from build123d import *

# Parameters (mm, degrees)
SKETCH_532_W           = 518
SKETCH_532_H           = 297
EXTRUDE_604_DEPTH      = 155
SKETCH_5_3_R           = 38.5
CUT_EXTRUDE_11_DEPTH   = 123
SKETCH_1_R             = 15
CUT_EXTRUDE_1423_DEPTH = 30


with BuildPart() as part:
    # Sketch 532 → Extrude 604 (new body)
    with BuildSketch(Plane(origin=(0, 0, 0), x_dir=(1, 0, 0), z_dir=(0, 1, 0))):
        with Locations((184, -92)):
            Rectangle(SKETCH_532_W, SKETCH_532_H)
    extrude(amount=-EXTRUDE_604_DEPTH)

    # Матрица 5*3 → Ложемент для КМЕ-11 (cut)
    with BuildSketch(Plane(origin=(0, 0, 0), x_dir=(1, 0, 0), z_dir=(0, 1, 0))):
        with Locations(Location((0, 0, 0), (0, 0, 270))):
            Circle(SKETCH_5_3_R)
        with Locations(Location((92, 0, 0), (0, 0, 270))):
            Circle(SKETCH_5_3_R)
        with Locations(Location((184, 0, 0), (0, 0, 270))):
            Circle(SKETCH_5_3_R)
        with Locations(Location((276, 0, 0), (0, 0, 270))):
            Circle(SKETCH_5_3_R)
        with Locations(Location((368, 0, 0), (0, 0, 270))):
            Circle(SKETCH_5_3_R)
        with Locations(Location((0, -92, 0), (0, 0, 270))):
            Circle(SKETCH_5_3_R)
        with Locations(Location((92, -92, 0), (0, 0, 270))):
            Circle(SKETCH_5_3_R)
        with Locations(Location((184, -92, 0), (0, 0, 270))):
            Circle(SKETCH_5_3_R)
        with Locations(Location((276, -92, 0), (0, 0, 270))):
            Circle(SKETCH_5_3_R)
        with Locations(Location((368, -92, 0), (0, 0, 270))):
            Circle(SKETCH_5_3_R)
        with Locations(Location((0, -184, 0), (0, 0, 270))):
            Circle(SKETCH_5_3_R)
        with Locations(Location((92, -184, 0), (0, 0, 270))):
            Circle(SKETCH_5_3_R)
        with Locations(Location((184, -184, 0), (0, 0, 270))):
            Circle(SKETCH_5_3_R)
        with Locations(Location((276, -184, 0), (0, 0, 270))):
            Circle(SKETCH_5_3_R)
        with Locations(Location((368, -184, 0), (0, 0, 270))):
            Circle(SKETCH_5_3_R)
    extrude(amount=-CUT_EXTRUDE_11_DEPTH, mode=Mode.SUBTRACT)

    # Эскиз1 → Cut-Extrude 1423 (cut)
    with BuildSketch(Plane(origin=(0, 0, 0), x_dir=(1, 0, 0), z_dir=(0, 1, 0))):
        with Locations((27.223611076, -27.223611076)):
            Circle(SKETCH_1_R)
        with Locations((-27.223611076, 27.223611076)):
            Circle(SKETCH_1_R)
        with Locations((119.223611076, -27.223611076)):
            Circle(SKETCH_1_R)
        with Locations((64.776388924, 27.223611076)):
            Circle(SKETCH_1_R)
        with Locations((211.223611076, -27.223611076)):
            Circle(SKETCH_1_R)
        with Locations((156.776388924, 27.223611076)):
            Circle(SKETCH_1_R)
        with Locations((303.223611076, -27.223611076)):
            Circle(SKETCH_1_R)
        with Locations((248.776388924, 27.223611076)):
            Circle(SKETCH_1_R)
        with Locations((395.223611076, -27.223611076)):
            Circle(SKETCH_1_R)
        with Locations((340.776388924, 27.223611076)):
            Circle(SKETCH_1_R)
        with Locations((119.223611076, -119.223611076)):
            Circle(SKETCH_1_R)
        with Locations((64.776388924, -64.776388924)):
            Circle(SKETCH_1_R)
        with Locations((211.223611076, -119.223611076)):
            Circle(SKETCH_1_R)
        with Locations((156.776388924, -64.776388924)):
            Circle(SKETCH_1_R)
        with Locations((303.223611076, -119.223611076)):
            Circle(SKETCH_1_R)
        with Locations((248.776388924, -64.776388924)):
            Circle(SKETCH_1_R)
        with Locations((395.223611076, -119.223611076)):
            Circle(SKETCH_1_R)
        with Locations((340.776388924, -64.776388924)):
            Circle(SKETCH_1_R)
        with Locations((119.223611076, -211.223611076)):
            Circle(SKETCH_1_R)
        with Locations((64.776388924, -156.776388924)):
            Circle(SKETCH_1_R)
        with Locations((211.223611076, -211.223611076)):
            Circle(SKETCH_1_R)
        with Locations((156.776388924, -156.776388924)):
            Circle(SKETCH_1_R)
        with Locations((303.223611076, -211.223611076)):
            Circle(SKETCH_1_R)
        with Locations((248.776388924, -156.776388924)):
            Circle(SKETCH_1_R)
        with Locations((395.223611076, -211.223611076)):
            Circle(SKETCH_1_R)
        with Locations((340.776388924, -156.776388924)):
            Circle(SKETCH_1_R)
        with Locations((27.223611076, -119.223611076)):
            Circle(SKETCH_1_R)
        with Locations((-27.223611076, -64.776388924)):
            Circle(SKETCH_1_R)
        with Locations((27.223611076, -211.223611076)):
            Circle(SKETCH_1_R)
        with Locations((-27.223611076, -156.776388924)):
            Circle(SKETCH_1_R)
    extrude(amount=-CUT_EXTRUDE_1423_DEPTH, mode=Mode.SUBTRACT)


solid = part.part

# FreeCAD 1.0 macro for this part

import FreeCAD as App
import Part
import Sketcher
from FreeCAD import Vector
Q = App.Units.Quantity


def add_polygon(sketch, points):
    """Adds a closed chain of lines whose ends are joined by coincident constraints."""
    first, n = sketch.GeometryCount, len(points)
    for a, b in zip(points, points[1:] + points[:1]):
        sketch.addGeometry(Part.LineSegment(App.Vector(*a, 0), App.Vector(*b, 0)), False)
    for i in range(n):
        sketch.addConstraint(Sketcher.Constraint("Coincident", first + i, 2, first + (i + 1) % n, 1))

doc = App.newDocument("Part")
body = doc.addObject("PartDesign::Body", "Body")

# Sketch on XZ plane
sketch1 = body.newObject("Sketcher::SketchObject", "Sketch")
sketch1.AttachmentSupport = (doc.getObject("XZ_Plane"), [""])
sketch1.MapMode = "FlatFace"
add_polygon(sketch1, [(-75, -56), (-75, 240), (443, 240), (443, -56)])  # lines 0-3
sketch1.addConstraint(Sketcher.Constraint("Vertical", 0))
sketch1.addConstraint(Sketcher.Constraint("Horizontal", 1))
sketch1.addConstraint(Sketcher.Constraint("Vertical", 2))
sketch1.addConstraint(Sketcher.Constraint("Horizontal", 3))
sketch1.addConstraint(Sketcher.Constraint("DistanceX", 1, 1, 1, 2, Q("518 mm")))
sketch1.addConstraint(Sketcher.Constraint("DistanceY", 0, 1, 0, 2, Q("297 mm")))
sketch1.addConstraint(Sketcher.Constraint("DistanceX", 0, 2, -1, 1, Q("75 mm")))
sketch1.addConstraint(Sketcher.Constraint("DistanceY", -1, 1, 0, 2, Q("240.5 mm")))
pad1 = body.newObject("PartDesign::Pad", "Pad")
pad1.Profile = sketch1
pad1.Length = 155

# Sketch on XZ plane
sketch2 = body.newObject("Sketcher::SketchObject", "Sketch001")
sketch2.AttachmentSupport = (doc.getObject("XZ_Plane"), [""])
sketch2.MapMode = "FlatFace"
sketch2.addGeometry(Part.Circle(Vector(0, 0, 0), Vector(0, 0, 1), 38), False)
sketch2.addGeometry(Part.Circle(Vector(92, 0, 0), Vector(0, 0, 1), 38), False)
sketch2.addGeometry(Part.Circle(Vector(184, 0, 0), Vector(0, 0, 1), 38), False)
sketch2.addGeometry(Part.Circle(Vector(276, 0, 0), Vector(0, 0, 1), 38), False)
sketch2.addGeometry(Part.Circle(Vector(368, 0, 0), Vector(0, 0, 1), 38), False)
sketch2.addGeometry(Part.Circle(Vector(0, 92, 0), Vector(0, 0, 1), 38), False)
sketch2.addGeometry(Part.Circle(Vector(92, 92, 0), Vector(0, 0, 1), 38), False)
sketch2.addGeometry(Part.Circle(Vector(184, 92, 0), Vector(0, 0, 1), 38), False)
sketch2.addGeometry(Part.Circle(Vector(276, 92, 0), Vector(0, 0, 1), 38), False)
sketch2.addGeometry(Part.Circle(Vector(368, 92, 0), Vector(0, 0, 1), 38), False)
sketch2.addGeometry(Part.Circle(Vector(0, 184, 0), Vector(0, 0, 1), 38), False)
sketch2.addGeometry(Part.Circle(Vector(92, 184, 0), Vector(0, 0, 1), 38), False)
sketch2.addGeometry(Part.Circle(Vector(184, 184, 0), Vector(0, 0, 1), 38), False)
sketch2.addGeometry(Part.Circle(Vector(276, 184, 0), Vector(0, 0, 1), 38), False)
sketch2.addGeometry(Part.Circle(Vector(368, 184, 0), Vector(0, 0, 1), 38), False)
sketch2.addConstraint(Sketcher.Constraint("Coincident", 0, 3, -1, 1))
sketch2.addConstraint(Sketcher.Constraint("Equal", 0, 1))
sketch2.addConstraint(Sketcher.Constraint("Equal", 1, 2))
sketch2.addConstraint(Sketcher.Constraint("Equal", 2, 3))
sketch2.addConstraint(Sketcher.Constraint("Equal", 3, 4))
sketch2.addConstraint(Sketcher.Constraint("Equal", 4, 5))
sketch2.addConstraint(Sketcher.Constraint("Equal", 5, 6))
sketch2.addConstraint(Sketcher.Constraint("Equal", 6, 7))
sketch2.addConstraint(Sketcher.Constraint("Equal", 7, 8))
sketch2.addConstraint(Sketcher.Constraint("Equal", 8, 9))
sketch2.addConstraint(Sketcher.Constraint("Equal", 9, 10))
sketch2.addConstraint(Sketcher.Constraint("Equal", 10, 11))
sketch2.addConstraint(Sketcher.Constraint("Equal", 11, 12))
sketch2.addConstraint(Sketcher.Constraint("Equal", 12, 13))
sketch2.addConstraint(Sketcher.Constraint("Equal", 13, 14))
sketch2.addConstraint(Sketcher.Constraint("PointOnObject", 1, 3, -1))
sketch2.addConstraint(Sketcher.Constraint("PointOnObject", 2, 3, -1))
sketch2.addConstraint(Sketcher.Constraint("PointOnObject", 3, 3, -1))
sketch2.addConstraint(Sketcher.Constraint("PointOnObject", 4, 3, -1))
sketch2.addConstraint(Sketcher.Constraint("PointOnObject", 5, 3, -2))
sketch2.addConstraint(Sketcher.Constraint("PointOnObject", 10, 3, -2))
sketch2.addConstraint(Sketcher.Constraint("Horizontal", 5, 3, 6, 3))
sketch2.addConstraint(Sketcher.Constraint("Horizontal", 6, 3, 7, 3))
sketch2.addConstraint(Sketcher.Constraint("Horizontal", 7, 3, 8, 3))
sketch2.addConstraint(Sketcher.Constraint("Horizontal", 8, 3, 9, 3))
sketch2.addConstraint(Sketcher.Constraint("Horizontal", 10, 3, 11, 3))
sketch2.addConstraint(Sketcher.Constraint("Horizontal", 11, 3, 12, 3))
sketch2.addConstraint(Sketcher.Constraint("Horizontal", 12, 3, 13, 3))
sketch2.addConstraint(Sketcher.Constraint("Horizontal", 13, 3, 14, 3))
sketch2.addConstraint(Sketcher.Constraint("Vertical", 1, 3, 6, 3))
sketch2.addConstraint(Sketcher.Constraint("Vertical", 2, 3, 7, 3))
sketch2.addConstraint(Sketcher.Constraint("Vertical", 3, 3, 8, 3))
sketch2.addConstraint(Sketcher.Constraint("Vertical", 4, 3, 9, 3))
sketch2.addConstraint(Sketcher.Constraint("Vertical", 6, 3, 11, 3))
sketch2.addConstraint(Sketcher.Constraint("Vertical", 7, 3, 12, 3))
sketch2.addConstraint(Sketcher.Constraint("Vertical", 8, 3, 13, 3))
sketch2.addConstraint(Sketcher.Constraint("Vertical", 9, 3, 14, 3))
sketch2.addConstraint(Sketcher.Constraint("Diameter", 0, Q("77 mm")))
sketch2.addConstraint(Sketcher.Constraint("DistanceX", -1, 1, 1, 3, Q("92 mm")))
sketch2.addConstraint(Sketcher.Constraint("DistanceX", -1, 1, 2, 3, Q("184 mm")))
sketch2.addConstraint(Sketcher.Constraint("DistanceX", -1, 1, 3, 3, Q("276 mm")))
sketch2.addConstraint(Sketcher.Constraint("DistanceX", -1, 1, 4, 3, Q("368 mm")))
sketch2.addConstraint(Sketcher.Constraint("DistanceY", -1, 1, 5, 3, Q("92 mm")))
sketch2.addConstraint(Sketcher.Constraint("DistanceY", -1, 1, 10, 3, Q("184 mm")))
pocket1 = body.newObject("PartDesign::Pocket", "Pocket")
pocket1.Profile = sketch2
pocket1.Length = 123
pocket1.Reversed = True

# Sketch on XZ plane
sketch3 = body.newObject("Sketcher::SketchObject", "Sketch002")
sketch3.AttachmentSupport = (doc.getObject("XZ_Plane"), [""])
sketch3.MapMode = "FlatFace"
sketch3.addGeometry(Part.Circle(Vector(27, 27, 0), Vector(0, 0, 1), 15), False)
sketch3.addGeometry(Part.Circle(Vector(-27, -27, 0), Vector(0, 0, 1), 15), False)
sketch3.addGeometry(Part.Circle(Vector(119, 27, 0), Vector(0, 0, 1), 15), False)
sketch3.addGeometry(Part.Circle(Vector(65, -27, 0), Vector(0, 0, 1), 15), False)
sketch3.addGeometry(Part.Circle(Vector(211, 27, 0), Vector(0, 0, 1), 15), False)
sketch3.addGeometry(Part.Circle(Vector(157, -27, 0), Vector(0, 0, 1), 15), False)
sketch3.addGeometry(Part.Circle(Vector(303, 27, 0), Vector(0, 0, 1), 15), False)
sketch3.addGeometry(Part.Circle(Vector(249, -27, 0), Vector(0, 0, 1), 15), False)
sketch3.addGeometry(Part.Circle(Vector(395, 27, 0), Vector(0, 0, 1), 15), False)
sketch3.addGeometry(Part.Circle(Vector(341, -27, 0), Vector(0, 0, 1), 15), False)
sketch3.addGeometry(Part.Circle(Vector(119, 119, 0), Vector(0, 0, 1), 15), False)
sketch3.addGeometry(Part.Circle(Vector(65, 65, 0), Vector(0, 0, 1), 15), False)
sketch3.addGeometry(Part.Circle(Vector(211, 119, 0), Vector(0, 0, 1), 15), False)
sketch3.addGeometry(Part.Circle(Vector(157, 65, 0), Vector(0, 0, 1), 15), False)
sketch3.addGeometry(Part.Circle(Vector(303, 119, 0), Vector(0, 0, 1), 15), False)
sketch3.addGeometry(Part.Circle(Vector(249, 65, 0), Vector(0, 0, 1), 15), False)
sketch3.addGeometry(Part.Circle(Vector(395, 119, 0), Vector(0, 0, 1), 15), False)
sketch3.addGeometry(Part.Circle(Vector(341, 65, 0), Vector(0, 0, 1), 15), False)
sketch3.addGeometry(Part.Circle(Vector(119, 211, 0), Vector(0, 0, 1), 15), False)
sketch3.addGeometry(Part.Circle(Vector(65, 157, 0), Vector(0, 0, 1), 15), False)
sketch3.addGeometry(Part.Circle(Vector(211, 211, 0), Vector(0, 0, 1), 15), False)
sketch3.addGeometry(Part.Circle(Vector(157, 157, 0), Vector(0, 0, 1), 15), False)
sketch3.addGeometry(Part.Circle(Vector(303, 211, 0), Vector(0, 0, 1), 15), False)
sketch3.addGeometry(Part.Circle(Vector(249, 157, 0), Vector(0, 0, 1), 15), False)
sketch3.addGeometry(Part.Circle(Vector(395, 211, 0), Vector(0, 0, 1), 15), False)
sketch3.addGeometry(Part.Circle(Vector(341, 157, 0), Vector(0, 0, 1), 15), False)
sketch3.addGeometry(Part.Circle(Vector(27, 119, 0), Vector(0, 0, 1), 15), False)
sketch3.addGeometry(Part.Circle(Vector(-27, 65, 0), Vector(0, 0, 1), 15), False)
sketch3.addGeometry(Part.Circle(Vector(27, 211, 0), Vector(0, 0, 1), 15), False)
sketch3.addGeometry(Part.Circle(Vector(-27, 157, 0), Vector(0, 0, 1), 15), False)
sketch3.addConstraint(Sketcher.Constraint("Equal", 0, 1))
sketch3.addConstraint(Sketcher.Constraint("Equal", 1, 2))
sketch3.addConstraint(Sketcher.Constraint("Equal", 2, 3))
sketch3.addConstraint(Sketcher.Constraint("Equal", 3, 4))
sketch3.addConstraint(Sketcher.Constraint("Equal", 4, 5))
sketch3.addConstraint(Sketcher.Constraint("Equal", 5, 6))
sketch3.addConstraint(Sketcher.Constraint("Equal", 6, 7))
sketch3.addConstraint(Sketcher.Constraint("Equal", 7, 8))
sketch3.addConstraint(Sketcher.Constraint("Equal", 8, 9))
sketch3.addConstraint(Sketcher.Constraint("Equal", 9, 10))
sketch3.addConstraint(Sketcher.Constraint("Equal", 10, 11))
sketch3.addConstraint(Sketcher.Constraint("Equal", 11, 12))
sketch3.addConstraint(Sketcher.Constraint("Equal", 12, 13))
sketch3.addConstraint(Sketcher.Constraint("Equal", 13, 14))
sketch3.addConstraint(Sketcher.Constraint("Equal", 14, 15))
sketch3.addConstraint(Sketcher.Constraint("Equal", 15, 16))
sketch3.addConstraint(Sketcher.Constraint("Equal", 16, 17))
sketch3.addConstraint(Sketcher.Constraint("Equal", 17, 18))
sketch3.addConstraint(Sketcher.Constraint("Equal", 18, 19))
sketch3.addConstraint(Sketcher.Constraint("Equal", 19, 20))
sketch3.addConstraint(Sketcher.Constraint("Equal", 20, 21))
sketch3.addConstraint(Sketcher.Constraint("Equal", 21, 22))
sketch3.addConstraint(Sketcher.Constraint("Equal", 22, 23))
sketch3.addConstraint(Sketcher.Constraint("Equal", 23, 24))
sketch3.addConstraint(Sketcher.Constraint("Equal", 24, 25))
sketch3.addConstraint(Sketcher.Constraint("Equal", 25, 26))
sketch3.addConstraint(Sketcher.Constraint("Equal", 26, 27))
sketch3.addConstraint(Sketcher.Constraint("Equal", 27, 28))
sketch3.addConstraint(Sketcher.Constraint("Equal", 28, 29))
sketch3.addConstraint(Sketcher.Constraint("Symmetric", 0, 3, 1, 3, -1, 1))
sketch3.addConstraint(Sketcher.Constraint("Horizontal", 0, 3, 2, 3))
sketch3.addConstraint(Sketcher.Constraint("Horizontal", 1, 3, 3, 3))
sketch3.addConstraint(Sketcher.Constraint("Horizontal", 2, 3, 4, 3))
sketch3.addConstraint(Sketcher.Constraint("Horizontal", 3, 3, 5, 3))
sketch3.addConstraint(Sketcher.Constraint("Horizontal", 4, 3, 6, 3))
sketch3.addConstraint(Sketcher.Constraint("Horizontal", 5, 3, 7, 3))
sketch3.addConstraint(Sketcher.Constraint("Horizontal", 6, 3, 8, 3))
sketch3.addConstraint(Sketcher.Constraint("Horizontal", 7, 3, 9, 3))
sketch3.addConstraint(Sketcher.Constraint("Horizontal", 10, 3, 12, 3))
sketch3.addConstraint(Sketcher.Constraint("Horizontal", 11, 3, 13, 3))
sketch3.addConstraint(Sketcher.Constraint("Horizontal", 12, 3, 14, 3))
sketch3.addConstraint(Sketcher.Constraint("Horizontal", 13, 3, 15, 3))
sketch3.addConstraint(Sketcher.Constraint("Horizontal", 14, 3, 16, 3))
sketch3.addConstraint(Sketcher.Constraint("Horizontal", 15, 3, 17, 3))
sketch3.addConstraint(Sketcher.Constraint("Horizontal", 18, 3, 20, 3))
sketch3.addConstraint(Sketcher.Constraint("Horizontal", 19, 3, 21, 3))
sketch3.addConstraint(Sketcher.Constraint("Horizontal", 20, 3, 22, 3))
sketch3.addConstraint(Sketcher.Constraint("Horizontal", 21, 3, 23, 3))
sketch3.addConstraint(Sketcher.Constraint("Horizontal", 22, 3, 24, 3))
sketch3.addConstraint(Sketcher.Constraint("Horizontal", 23, 3, 25, 3))
sketch3.addConstraint(Sketcher.Constraint("Horizontal", 16, 3, 26, 3))
sketch3.addConstraint(Sketcher.Constraint("Horizontal", 17, 3, 27, 3))
sketch3.addConstraint(Sketcher.Constraint("Horizontal", 24, 3, 28, 3))
sketch3.addConstraint(Sketcher.Constraint("Horizontal", 25, 3, 29, 3))
sketch3.addConstraint(Sketcher.Constraint("Vertical", 2, 3, 10, 3))
sketch3.addConstraint(Sketcher.Constraint("Vertical", 3, 3, 11, 3))
sketch3.addConstraint(Sketcher.Constraint("Vertical", 4, 3, 12, 3))
sketch3.addConstraint(Sketcher.Constraint("Vertical", 5, 3, 13, 3))
sketch3.addConstraint(Sketcher.Constraint("Vertical", 6, 3, 14, 3))
sketch3.addConstraint(Sketcher.Constraint("Vertical", 7, 3, 15, 3))
sketch3.addConstraint(Sketcher.Constraint("Vertical", 8, 3, 16, 3))
sketch3.addConstraint(Sketcher.Constraint("Vertical", 9, 3, 17, 3))
sketch3.addConstraint(Sketcher.Constraint("Vertical", 10, 3, 18, 3))
sketch3.addConstraint(Sketcher.Constraint("Vertical", 11, 3, 19, 3))
sketch3.addConstraint(Sketcher.Constraint("Vertical", 12, 3, 20, 3))
sketch3.addConstraint(Sketcher.Constraint("Vertical", 13, 3, 21, 3))
sketch3.addConstraint(Sketcher.Constraint("Vertical", 14, 3, 22, 3))
sketch3.addConstraint(Sketcher.Constraint("Vertical", 15, 3, 23, 3))
sketch3.addConstraint(Sketcher.Constraint("Vertical", 16, 3, 24, 3))
sketch3.addConstraint(Sketcher.Constraint("Vertical", 17, 3, 25, 3))
sketch3.addConstraint(Sketcher.Constraint("Vertical", 0, 3, 26, 3))
sketch3.addConstraint(Sketcher.Constraint("Vertical", 1, 3, 27, 3))
sketch3.addConstraint(Sketcher.Constraint("Vertical", 26, 3, 28, 3))
sketch3.addConstraint(Sketcher.Constraint("Vertical", 27, 3, 29, 3))
sketch3.addConstraint(Sketcher.Constraint("Diameter", 0, Q("30 mm")))
sketch3.addConstraint(Sketcher.Constraint("DistanceX", 0, 3, 2, 3, Q("92 mm")))
sketch3.addConstraint(Sketcher.Constraint("DistanceX", 1, 3, 3, 3, Q("92 mm")))
sketch3.addConstraint(Sketcher.Constraint("DistanceX", 2, 3, 4, 3, Q("92 mm")))
sketch3.addConstraint(Sketcher.Constraint("DistanceX", 3, 3, 5, 3, Q("92 mm")))
sketch3.addConstraint(Sketcher.Constraint("DistanceX", 4, 3, 6, 3, Q("92 mm")))
sketch3.addConstraint(Sketcher.Constraint("DistanceX", 5, 3, 7, 3, Q("92 mm")))
sketch3.addConstraint(Sketcher.Constraint("DistanceX", 6, 3, 8, 3, Q("92 mm")))
sketch3.addConstraint(Sketcher.Constraint("DistanceX", 7, 3, 9, 3, Q("92 mm")))
sketch3.addConstraint(Sketcher.Constraint("DistanceY", 2, 3, 10, 3, Q("92 mm")))
sketch3.addConstraint(Sketcher.Constraint("DistanceY", 3, 3, 11, 3, Q("92 mm")))
sketch3.addConstraint(Sketcher.Constraint("DistanceY", 10, 3, 18, 3, Q("92 mm")))
sketch3.addConstraint(Sketcher.Constraint("DistanceY", 11, 3, 19, 3, Q("92 mm")))
sketch3.addConstraint(Sketcher.Constraint("DistanceX", -1, 1, 0, 3, Q("27.223611 mm")))
sketch3.addConstraint(Sketcher.Constraint("DistanceY", -1, 1, 0, 3, Q("27.223611 mm")))
pocket2 = body.newObject("PartDesign::Pocket", "Pocket001")
pocket2.Profile = sketch3
pocket2.Length = 30
pocket2.Reversed = True

doc.recompute()
